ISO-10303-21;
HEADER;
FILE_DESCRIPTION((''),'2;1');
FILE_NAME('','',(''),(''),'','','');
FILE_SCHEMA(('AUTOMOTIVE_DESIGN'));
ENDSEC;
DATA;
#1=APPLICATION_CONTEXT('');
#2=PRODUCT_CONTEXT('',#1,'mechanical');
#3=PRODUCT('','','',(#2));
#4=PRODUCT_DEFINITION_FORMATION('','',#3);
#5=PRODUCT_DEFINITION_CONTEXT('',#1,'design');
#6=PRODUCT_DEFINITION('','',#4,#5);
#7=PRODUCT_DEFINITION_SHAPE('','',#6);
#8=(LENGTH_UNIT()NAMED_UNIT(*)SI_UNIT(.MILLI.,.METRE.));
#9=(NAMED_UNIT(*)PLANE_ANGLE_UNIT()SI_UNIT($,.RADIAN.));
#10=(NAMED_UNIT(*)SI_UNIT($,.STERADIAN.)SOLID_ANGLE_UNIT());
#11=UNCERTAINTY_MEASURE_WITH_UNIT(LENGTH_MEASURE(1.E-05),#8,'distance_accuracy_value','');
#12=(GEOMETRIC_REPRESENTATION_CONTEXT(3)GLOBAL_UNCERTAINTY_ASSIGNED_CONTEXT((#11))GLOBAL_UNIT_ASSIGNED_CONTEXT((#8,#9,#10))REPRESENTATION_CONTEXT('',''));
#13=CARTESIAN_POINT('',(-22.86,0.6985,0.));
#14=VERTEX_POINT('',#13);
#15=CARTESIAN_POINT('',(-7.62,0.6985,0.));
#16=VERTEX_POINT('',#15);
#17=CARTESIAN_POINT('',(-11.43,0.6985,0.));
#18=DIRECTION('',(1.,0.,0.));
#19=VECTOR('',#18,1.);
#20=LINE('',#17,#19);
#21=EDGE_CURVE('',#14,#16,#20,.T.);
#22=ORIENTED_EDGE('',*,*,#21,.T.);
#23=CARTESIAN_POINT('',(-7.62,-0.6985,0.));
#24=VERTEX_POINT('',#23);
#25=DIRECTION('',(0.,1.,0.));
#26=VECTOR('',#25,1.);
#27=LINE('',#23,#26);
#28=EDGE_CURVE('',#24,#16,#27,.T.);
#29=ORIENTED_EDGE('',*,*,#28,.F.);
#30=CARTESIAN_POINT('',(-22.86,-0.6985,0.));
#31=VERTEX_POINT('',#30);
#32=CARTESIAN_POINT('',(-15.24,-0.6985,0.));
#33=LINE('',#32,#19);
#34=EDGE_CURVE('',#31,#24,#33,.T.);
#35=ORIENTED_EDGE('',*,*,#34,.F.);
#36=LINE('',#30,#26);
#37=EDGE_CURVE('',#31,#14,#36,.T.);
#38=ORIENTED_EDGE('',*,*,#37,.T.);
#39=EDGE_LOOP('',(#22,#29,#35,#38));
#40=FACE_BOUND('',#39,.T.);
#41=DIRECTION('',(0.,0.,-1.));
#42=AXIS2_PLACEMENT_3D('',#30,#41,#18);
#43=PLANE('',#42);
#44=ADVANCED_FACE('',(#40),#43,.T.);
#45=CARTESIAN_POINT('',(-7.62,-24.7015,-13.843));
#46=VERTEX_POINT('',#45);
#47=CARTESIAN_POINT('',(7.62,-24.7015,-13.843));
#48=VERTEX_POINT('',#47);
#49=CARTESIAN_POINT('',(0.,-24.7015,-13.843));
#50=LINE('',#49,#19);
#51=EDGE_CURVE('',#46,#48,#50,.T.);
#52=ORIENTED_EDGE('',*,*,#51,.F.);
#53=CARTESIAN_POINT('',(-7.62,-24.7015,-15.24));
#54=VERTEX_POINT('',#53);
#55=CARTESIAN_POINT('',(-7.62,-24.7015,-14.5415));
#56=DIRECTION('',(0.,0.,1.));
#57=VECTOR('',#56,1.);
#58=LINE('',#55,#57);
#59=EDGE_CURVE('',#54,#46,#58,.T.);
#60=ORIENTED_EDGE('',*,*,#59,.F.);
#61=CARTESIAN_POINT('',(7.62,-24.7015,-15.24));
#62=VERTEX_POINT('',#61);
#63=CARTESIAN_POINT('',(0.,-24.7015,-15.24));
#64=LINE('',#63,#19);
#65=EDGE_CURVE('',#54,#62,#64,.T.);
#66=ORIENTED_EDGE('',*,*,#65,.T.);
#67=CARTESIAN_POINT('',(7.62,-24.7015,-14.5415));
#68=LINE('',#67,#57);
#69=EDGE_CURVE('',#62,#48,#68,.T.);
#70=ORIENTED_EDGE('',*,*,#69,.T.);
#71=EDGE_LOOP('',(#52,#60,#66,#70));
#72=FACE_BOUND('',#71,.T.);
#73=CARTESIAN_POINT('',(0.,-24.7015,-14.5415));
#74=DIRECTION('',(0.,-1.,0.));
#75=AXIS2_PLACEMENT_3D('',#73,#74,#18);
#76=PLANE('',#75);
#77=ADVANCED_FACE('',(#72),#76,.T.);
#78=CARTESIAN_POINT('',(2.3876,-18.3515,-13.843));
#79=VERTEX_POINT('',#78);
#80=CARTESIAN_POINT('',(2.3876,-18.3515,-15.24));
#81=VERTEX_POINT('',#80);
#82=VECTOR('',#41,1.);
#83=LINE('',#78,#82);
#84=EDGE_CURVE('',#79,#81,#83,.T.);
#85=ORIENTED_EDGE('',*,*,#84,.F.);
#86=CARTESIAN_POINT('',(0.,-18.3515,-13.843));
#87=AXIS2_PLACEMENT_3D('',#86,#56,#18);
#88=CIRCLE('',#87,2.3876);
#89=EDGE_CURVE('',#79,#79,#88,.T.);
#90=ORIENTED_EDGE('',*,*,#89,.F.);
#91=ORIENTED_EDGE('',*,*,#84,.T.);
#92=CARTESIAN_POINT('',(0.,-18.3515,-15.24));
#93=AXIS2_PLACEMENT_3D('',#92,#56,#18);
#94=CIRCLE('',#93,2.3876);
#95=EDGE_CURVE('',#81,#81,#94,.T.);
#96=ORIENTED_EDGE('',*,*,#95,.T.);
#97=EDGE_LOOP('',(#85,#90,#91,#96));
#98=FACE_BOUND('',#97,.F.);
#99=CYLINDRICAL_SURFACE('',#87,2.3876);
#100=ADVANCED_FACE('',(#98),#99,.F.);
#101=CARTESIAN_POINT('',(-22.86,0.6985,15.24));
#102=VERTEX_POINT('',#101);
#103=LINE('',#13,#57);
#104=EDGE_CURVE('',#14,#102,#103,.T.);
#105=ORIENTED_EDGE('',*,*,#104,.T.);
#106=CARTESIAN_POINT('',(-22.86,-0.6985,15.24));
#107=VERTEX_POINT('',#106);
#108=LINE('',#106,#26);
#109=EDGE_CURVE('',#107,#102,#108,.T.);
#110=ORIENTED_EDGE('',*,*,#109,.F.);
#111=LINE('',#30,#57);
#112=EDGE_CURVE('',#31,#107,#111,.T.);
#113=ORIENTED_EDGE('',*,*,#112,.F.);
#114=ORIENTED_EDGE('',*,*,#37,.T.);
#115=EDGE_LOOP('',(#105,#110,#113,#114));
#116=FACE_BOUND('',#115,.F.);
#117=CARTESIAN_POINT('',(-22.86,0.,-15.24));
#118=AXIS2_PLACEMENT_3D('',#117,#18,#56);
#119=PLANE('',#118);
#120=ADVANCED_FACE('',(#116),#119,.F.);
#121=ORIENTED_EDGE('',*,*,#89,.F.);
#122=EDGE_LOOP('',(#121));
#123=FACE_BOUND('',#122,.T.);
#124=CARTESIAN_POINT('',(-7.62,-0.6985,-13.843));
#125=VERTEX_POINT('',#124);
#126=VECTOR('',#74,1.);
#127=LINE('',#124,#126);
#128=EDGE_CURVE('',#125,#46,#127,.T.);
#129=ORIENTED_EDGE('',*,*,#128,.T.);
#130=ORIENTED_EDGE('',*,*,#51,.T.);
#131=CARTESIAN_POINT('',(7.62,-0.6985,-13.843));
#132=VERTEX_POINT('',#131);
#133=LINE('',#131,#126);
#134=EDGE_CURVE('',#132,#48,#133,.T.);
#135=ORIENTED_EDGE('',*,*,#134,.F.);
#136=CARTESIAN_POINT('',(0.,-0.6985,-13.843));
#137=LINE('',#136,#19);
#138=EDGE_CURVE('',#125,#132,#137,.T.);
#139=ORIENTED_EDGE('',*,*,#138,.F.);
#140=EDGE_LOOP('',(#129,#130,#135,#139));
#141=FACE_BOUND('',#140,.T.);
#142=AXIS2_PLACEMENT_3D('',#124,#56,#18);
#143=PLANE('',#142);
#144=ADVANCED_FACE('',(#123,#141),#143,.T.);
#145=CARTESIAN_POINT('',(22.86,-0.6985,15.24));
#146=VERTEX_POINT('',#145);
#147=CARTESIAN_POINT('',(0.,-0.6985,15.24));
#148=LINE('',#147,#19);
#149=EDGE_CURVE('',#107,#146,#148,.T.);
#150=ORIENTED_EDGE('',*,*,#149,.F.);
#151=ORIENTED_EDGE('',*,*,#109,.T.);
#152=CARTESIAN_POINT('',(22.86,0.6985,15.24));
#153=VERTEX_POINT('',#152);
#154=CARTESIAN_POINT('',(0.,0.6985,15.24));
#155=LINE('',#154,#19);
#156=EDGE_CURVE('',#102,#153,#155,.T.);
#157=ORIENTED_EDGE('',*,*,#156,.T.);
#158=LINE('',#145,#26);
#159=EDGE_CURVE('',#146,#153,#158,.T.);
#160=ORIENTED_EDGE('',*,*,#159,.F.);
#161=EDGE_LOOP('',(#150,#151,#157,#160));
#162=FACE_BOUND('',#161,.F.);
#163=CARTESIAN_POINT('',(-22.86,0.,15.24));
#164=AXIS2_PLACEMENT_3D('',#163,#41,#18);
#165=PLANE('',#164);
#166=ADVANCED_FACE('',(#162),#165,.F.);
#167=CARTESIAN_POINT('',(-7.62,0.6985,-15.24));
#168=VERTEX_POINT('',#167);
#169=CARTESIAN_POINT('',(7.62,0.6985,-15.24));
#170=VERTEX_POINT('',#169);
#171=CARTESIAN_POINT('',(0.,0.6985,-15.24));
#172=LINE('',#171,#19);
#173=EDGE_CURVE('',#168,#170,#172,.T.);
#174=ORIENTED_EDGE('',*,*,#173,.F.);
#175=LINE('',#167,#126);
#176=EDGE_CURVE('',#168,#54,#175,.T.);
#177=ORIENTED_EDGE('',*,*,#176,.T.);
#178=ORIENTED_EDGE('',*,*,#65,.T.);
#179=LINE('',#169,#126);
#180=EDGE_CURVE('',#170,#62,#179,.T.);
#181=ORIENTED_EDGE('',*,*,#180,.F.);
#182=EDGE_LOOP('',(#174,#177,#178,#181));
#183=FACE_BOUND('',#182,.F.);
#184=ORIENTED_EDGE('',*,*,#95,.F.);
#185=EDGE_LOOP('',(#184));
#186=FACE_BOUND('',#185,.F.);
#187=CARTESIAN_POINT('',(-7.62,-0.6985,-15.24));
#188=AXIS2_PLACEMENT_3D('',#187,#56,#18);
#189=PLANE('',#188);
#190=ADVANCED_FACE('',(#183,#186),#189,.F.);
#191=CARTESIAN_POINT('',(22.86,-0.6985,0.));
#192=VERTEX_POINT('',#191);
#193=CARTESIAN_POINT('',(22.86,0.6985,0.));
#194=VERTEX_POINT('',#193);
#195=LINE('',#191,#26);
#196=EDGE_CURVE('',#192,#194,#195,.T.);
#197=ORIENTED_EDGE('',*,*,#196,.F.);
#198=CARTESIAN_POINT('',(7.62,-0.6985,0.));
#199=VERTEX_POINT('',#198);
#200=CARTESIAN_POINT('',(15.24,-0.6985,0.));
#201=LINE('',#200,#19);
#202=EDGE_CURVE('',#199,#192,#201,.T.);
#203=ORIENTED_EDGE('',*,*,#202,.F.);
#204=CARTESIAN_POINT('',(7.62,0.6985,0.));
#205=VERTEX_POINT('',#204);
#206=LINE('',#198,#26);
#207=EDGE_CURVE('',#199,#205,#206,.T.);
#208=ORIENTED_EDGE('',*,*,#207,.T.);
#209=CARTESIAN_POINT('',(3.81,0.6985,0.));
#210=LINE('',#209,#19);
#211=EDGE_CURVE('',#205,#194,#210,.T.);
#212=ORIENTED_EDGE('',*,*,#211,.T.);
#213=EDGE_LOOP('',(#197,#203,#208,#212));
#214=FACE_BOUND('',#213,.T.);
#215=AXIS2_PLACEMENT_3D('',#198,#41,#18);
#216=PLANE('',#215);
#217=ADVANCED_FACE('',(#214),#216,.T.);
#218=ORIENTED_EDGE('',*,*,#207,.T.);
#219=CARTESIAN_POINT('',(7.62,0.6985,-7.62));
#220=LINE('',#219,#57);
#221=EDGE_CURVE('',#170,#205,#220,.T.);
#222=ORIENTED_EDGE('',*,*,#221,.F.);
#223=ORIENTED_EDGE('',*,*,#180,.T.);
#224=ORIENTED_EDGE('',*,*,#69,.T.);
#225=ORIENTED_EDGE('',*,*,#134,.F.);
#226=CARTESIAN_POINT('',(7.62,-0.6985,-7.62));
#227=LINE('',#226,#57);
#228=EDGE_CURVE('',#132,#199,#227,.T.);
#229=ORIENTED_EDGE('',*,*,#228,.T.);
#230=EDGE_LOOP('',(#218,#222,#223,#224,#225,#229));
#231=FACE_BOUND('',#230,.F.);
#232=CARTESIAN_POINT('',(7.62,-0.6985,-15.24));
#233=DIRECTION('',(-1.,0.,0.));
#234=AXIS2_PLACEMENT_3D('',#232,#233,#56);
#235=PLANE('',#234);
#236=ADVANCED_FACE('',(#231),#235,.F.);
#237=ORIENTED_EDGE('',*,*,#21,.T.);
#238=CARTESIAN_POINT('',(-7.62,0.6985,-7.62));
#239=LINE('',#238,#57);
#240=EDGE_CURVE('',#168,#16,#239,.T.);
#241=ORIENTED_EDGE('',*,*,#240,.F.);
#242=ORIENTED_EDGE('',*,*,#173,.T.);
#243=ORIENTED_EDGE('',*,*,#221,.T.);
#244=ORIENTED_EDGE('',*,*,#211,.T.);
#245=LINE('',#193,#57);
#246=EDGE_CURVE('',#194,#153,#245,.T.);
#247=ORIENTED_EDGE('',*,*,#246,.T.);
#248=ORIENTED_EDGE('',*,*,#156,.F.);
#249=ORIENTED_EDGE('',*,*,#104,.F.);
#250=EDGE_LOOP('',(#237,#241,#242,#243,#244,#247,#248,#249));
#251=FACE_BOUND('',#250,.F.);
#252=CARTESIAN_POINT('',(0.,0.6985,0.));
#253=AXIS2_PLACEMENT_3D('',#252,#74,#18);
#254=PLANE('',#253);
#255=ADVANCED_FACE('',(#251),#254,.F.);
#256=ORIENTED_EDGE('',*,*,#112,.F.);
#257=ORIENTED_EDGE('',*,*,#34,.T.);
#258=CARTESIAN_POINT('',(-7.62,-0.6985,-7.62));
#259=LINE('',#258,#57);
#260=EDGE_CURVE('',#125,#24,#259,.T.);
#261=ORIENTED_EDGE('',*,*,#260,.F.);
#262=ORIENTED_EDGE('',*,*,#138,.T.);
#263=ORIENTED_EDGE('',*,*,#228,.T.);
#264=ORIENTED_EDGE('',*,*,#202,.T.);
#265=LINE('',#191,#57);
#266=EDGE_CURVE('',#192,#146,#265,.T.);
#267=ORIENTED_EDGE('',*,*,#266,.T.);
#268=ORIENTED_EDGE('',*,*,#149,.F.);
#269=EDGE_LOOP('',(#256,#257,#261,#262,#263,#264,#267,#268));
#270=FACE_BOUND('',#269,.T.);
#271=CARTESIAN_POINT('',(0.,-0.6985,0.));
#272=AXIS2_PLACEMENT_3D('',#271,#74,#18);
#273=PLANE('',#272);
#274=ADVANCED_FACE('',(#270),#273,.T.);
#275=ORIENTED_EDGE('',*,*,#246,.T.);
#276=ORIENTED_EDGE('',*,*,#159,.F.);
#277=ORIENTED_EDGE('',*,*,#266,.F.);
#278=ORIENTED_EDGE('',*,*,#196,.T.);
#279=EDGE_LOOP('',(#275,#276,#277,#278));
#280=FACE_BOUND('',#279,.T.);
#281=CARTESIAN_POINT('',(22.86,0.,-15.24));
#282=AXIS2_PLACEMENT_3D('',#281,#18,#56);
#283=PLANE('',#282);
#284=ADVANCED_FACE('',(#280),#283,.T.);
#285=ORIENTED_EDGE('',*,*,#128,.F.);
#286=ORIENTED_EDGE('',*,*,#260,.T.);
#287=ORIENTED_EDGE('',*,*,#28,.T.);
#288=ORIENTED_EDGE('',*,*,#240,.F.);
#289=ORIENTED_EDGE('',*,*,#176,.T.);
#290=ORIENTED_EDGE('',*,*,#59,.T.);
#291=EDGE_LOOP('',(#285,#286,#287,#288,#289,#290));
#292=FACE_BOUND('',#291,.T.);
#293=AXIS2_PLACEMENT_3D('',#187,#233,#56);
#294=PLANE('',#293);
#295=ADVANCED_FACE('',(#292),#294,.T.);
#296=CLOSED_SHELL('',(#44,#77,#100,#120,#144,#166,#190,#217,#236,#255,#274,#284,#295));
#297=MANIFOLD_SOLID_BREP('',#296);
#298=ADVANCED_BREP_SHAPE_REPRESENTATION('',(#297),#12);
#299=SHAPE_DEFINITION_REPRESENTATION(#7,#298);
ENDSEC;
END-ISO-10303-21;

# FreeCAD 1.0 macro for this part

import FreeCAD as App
import Part
import Sketcher
from FreeCAD import Vector
Q = App.Units.Quantity

doc = App.newDocument("Part")
body = doc.addObject("PartDesign::Body", "Body")

sketch1 = doc.addObject("Sketcher::SketchObject", "Sketch")
body.addObject(sketch1)
sketch1.AttachmentSupport = (doc.XZ_Plane, [""])
sketch1.MapMode = "FlatFace"
sketch1.addGeometry([
    Part.LineSegment(Vector(-22.86, 15.24, 0), Vector(-22.86, -15.24, 0)),
    Part.LineSegment(Vector(-22.86, -15.24, 0), Vector(22.86, -15.24, 0)),
    Part.LineSegment(Vector(22.86, -15.24, 0), Vector(22.86, 15.24, 0)),
    Part.LineSegment(Vector(22.86, 15.24, 0), Vector(-22.86, 15.24, 0)),
], False)
sketch1.addConstraint([
    Sketcher.Constraint("Coincident", 0, 2, 1, 1),
    Sketcher.Constraint("Coincident", 1, 2, 2, 1),
    Sketcher.Constraint("Coincident", 2, 2, 3, 1),
    Sketcher.Constraint("Coincident", 3, 2, 0, 1),
    Sketcher.Constraint("Vertical", 0),
    Sketcher.Constraint("Horizontal", 1),
    Sketcher.Constraint("Vertical", 2),
    Sketcher.Constraint("Horizontal", 3),
    Sketcher.Constraint("Symmetric", 0, 2, 2, 2, -1, 1),
    Sketcher.Constraint("DistanceX", 1, 1, 1, 2, Q("1.8 in")),
    Sketcher.Constraint("DistanceY", 0, 2, 0, 1, Q("1.2 in")),
])
pad1 = doc.addObject("PartDesign::Pad", "Pad")
body.addObject(pad1)
pad1.Profile = sketch1
pad1.Length = Q("0.055 in")
pad1.Midplane = True

sketch2 = doc.addObject("Sketcher::SketchObject", "Sketch001")
body.addObject(sketch2)
sketch2.AttachmentSupport = (doc.XZ_Plane, [""])
sketch2.MapMode = "FlatFace"
sketch2.AttachmentOffset = App.Placement(Vector(0, 0, 0.0275 * 25.4), App.Rotation())
sketch2.addGeometry([
    Part.LineSegment(Vector(-22.86, 0, 0), Vector(-22.86, -15.24, 0)),
    Part.LineSegment(Vector(-22.86, -15.24, 0), Vector(-7.62, -15.24, 0)),
    Part.LineSegment(Vector(-7.62, -15.24, 0), Vector(-7.62, 0, 0)),
    Part.LineSegment(Vector(-7.62, 0, 0), Vector(-22.86, 0, 0)),
    Part.LineSegment(Vector(7.62, 0, 0), Vector(7.62, -15.24, 0)),
    Part.LineSegment(Vector(7.62, -15.24, 0), Vector(22.86, -15.24, 0)),
    Part.LineSegment(Vector(22.86, -15.24, 0), Vector(22.86, 0, 0)),
    Part.LineSegment(Vector(22.86, 0, 0), Vector(7.62, 0, 0)),
], False)
sketch2.addConstraint([
    Sketcher.Constraint("Coincident", 0, 2, 1, 1),
    Sketcher.Constraint("Coincident", 1, 2, 2, 1),
    Sketcher.Constraint("Coincident", 2, 2, 3, 1),
    Sketcher.Constraint("Coincident", 3, 2, 0, 1),
    Sketcher.Constraint("Coincident", 4, 2, 5, 1),
    Sketcher.Constraint("Coincident", 5, 2, 6, 1),
    Sketcher.Constraint("Coincident", 6, 2, 7, 1),
    Sketcher.Constraint("Coincident", 7, 2, 4, 1),
    Sketcher.Constraint("Vertical", 0),
    Sketcher.Constraint("Horizontal", 1),
    Sketcher.Constraint("Vertical", 2),
    Sketcher.Constraint("Horizontal", 3),
    Sketcher.Constraint("Vertical", 4),
    Sketcher.Constraint("Horizontal", 5),
    Sketcher.Constraint("Vertical", 6),
    Sketcher.Constraint("Horizontal", 7),
    Sketcher.Constraint("Symmetric", 3, 2, 6, 2, -1, 1),
    Sketcher.Constraint("Symmetric", 1, 2, 4, 2, -2),
    Sketcher.Constraint("PointOnObject", 2, 2, -1),
    Sketcher.Constraint("Equal", 7, 0),
    Sketcher.Constraint("DistanceX", 1, 1, 1, 2, Q("0.6 in")),
    Sketcher.Constraint("DistanceX", 0, 2, -1, 1, Q("0.9 in")),
])
pocket1 = doc.addObject("PartDesign::Pocket", "Pocket")
body.addObject(pocket1)
pocket1.Profile = sketch2
pocket1.Type = "ThroughAll"

sketch3 = doc.addObject("Sketcher::SketchObject", "Sketch002")
body.addObject(sketch3)
sketch3.AttachmentSupport = (doc.XZ_Plane, [""])
sketch3.MapMode = "FlatFace"
sketch3.AttachmentOffset = App.Placement(Vector(0, 0, 0.0275 * 25.4), App.Rotation())
sketch3.addGeometry([
    Part.LineSegment(Vector(-7.62, -13.843, 0), Vector(-7.62, -15.24, 0)),
    Part.LineSegment(Vector(-7.62, -15.24, 0), Vector(7.62, -15.24, 0)),
    Part.LineSegment(Vector(7.62, -15.24, 0), Vector(7.62, -13.843, 0)),
    Part.LineSegment(Vector(7.62, -13.843, 0), Vector(-7.62, -13.843, 0)),
], False)
sketch3.addConstraint([
    Sketcher.Constraint("Coincident", 0, 2, 1, 1),
    Sketcher.Constraint("Coincident", 1, 2, 2, 1),
    Sketcher.Constraint("Coincident", 2, 2, 3, 1),
    Sketcher.Constraint("Coincident", 3, 2, 0, 1),
    Sketcher.Constraint("Vertical", 0),
    Sketcher.Constraint("Horizontal", 1),
    Sketcher.Constraint("Vertical", 2),
    Sketcher.Constraint("Horizontal", 3),
    Sketcher.Constraint("DistanceX", 1, 1, 1, 2, Q("0.6 in")),
    Sketcher.Constraint("DistanceX", 0, 2, -1, 1, Q("0.3 in")),
    Sketcher.Constraint("DistanceY", 0, 2, -1, 1, Q("0.6 in")),
    Sketcher.Constraint("DistanceY", 0, 2, 0, 1, Q("0.055 in")),
])
pad2 = doc.addObject("PartDesign::Pad", "Pad001")
body.addObject(pad2)
pad2.Profile = sketch3
pad2.Length = Q("0.945 in")

sketch4 = doc.addObject("Sketcher::SketchObject", "Sketch003")
body.addObject(sketch4)
sketch4.AttachmentSupport = (doc.XY_Plane, [""])
sketch4.MapMode = "FlatFace"
sketch4.AttachmentOffset = App.Placement(Vector(0, 0, -0.545 * 25.4), App.Rotation())
sketch4.addGeometry(Part.Circle(Vector(0, -18.3515, 0), Vector(0, 0, 1), 2.3876), False)
sketch4.addConstraint([
    Sketcher.Constraint("PointOnObject", 0, 3, -2),
    Sketcher.Constraint("Diameter", 0, Q("0.188 in")),
    Sketcher.Constraint("DistanceY", 0, 3, -1, 1, Q("0.7225 in")),
])
pocket2 = doc.addObject("PartDesign::Pocket", "Pocket001")
body.addObject(pocket2)
pocket2.Profile = sketch4
pocket2.Type = "ThroughAll"

doc.recompute()
